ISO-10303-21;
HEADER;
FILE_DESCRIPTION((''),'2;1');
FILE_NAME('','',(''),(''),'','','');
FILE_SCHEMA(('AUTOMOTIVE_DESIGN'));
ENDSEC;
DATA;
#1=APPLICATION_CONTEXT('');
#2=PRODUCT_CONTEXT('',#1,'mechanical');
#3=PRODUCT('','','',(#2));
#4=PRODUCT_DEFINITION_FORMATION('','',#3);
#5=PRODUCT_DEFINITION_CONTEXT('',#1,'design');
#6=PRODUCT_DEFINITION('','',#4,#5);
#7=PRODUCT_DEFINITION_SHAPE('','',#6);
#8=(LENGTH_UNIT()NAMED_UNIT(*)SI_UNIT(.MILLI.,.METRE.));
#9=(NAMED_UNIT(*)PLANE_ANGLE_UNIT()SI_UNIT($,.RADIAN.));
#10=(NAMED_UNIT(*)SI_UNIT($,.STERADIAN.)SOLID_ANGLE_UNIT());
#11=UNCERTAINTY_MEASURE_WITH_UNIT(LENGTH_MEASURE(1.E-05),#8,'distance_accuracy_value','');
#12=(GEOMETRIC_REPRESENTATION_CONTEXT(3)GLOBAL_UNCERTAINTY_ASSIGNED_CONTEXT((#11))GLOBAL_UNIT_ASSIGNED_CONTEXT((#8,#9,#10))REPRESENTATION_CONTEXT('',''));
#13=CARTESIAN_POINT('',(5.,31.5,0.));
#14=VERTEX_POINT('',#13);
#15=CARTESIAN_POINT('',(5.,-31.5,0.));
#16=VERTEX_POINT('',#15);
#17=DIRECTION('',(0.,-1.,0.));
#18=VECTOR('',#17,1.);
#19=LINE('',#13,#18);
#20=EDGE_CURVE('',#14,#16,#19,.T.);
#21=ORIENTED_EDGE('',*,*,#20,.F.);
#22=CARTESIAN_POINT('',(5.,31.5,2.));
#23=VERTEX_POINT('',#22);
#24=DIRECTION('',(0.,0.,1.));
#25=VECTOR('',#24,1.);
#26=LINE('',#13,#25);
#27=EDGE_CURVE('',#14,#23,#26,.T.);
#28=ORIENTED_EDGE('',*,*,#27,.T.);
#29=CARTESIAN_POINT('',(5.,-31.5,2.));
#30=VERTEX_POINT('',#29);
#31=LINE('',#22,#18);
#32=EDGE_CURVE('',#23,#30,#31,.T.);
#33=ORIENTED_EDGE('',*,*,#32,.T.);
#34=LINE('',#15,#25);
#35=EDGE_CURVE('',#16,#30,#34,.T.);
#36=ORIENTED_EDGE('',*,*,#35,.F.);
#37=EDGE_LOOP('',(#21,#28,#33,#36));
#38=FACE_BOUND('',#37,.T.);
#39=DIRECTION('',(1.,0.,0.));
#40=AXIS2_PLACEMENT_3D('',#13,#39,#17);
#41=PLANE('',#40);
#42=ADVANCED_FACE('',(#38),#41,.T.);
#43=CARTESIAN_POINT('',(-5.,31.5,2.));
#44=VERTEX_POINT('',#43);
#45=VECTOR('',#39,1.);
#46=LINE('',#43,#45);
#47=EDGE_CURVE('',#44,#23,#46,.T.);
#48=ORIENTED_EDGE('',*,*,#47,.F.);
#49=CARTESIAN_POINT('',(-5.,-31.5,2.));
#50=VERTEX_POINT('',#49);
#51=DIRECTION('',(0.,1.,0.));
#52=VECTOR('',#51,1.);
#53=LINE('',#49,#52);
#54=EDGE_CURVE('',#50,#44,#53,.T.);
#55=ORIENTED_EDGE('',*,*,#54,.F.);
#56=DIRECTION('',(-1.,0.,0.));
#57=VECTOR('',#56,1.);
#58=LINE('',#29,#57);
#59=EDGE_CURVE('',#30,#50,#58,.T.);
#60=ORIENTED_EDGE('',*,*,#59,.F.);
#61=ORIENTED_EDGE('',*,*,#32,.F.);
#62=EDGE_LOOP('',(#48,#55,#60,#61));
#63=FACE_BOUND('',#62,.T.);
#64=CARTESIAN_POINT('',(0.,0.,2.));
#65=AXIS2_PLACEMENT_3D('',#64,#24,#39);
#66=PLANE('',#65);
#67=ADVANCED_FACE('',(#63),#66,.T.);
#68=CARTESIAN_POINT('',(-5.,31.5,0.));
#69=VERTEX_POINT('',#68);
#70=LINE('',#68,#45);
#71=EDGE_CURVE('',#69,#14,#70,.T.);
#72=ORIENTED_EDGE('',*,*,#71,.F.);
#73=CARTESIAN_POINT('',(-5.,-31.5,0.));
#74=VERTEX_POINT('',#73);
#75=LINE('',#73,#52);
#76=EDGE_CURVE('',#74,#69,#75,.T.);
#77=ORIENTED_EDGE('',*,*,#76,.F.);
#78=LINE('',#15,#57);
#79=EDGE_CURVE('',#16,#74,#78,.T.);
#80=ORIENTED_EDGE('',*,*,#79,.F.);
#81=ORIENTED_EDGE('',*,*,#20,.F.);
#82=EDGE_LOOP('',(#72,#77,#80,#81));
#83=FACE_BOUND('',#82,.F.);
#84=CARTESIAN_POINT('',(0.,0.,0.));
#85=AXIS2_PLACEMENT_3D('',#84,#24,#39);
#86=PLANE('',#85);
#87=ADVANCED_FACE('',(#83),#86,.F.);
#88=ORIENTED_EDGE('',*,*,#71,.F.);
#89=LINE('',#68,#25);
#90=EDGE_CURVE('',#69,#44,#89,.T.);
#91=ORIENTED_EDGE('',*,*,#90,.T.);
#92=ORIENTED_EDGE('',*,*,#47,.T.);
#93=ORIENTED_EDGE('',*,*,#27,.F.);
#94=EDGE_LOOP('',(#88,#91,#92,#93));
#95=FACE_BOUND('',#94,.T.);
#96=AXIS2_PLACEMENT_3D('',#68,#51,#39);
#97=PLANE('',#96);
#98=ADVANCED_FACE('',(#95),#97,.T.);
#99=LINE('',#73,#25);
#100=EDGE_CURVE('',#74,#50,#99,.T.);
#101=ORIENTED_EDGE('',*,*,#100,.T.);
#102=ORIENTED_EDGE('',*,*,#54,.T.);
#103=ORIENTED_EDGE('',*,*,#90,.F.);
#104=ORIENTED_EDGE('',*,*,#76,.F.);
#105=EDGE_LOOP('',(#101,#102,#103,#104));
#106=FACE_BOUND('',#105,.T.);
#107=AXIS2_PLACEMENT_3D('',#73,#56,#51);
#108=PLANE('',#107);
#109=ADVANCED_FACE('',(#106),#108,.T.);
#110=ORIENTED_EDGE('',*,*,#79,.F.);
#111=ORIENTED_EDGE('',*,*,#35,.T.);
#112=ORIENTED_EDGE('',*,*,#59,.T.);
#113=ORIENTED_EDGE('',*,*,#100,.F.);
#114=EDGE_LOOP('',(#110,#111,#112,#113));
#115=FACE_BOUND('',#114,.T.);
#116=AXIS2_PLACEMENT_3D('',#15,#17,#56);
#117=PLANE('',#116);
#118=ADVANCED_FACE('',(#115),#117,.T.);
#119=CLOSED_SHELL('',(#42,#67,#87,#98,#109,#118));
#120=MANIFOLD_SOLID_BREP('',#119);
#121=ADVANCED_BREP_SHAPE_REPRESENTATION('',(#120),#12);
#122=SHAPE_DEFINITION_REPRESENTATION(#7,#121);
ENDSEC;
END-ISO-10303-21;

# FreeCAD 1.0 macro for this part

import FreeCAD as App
import Part
import Sketcher
from FreeCAD import Vector

doc = App.newDocument("Part")
params = doc.addObject("Spreadsheet::Sheet", "Params")
for row, (alias, value) in enumerate([
    ("sketch1_width", "10 mm"),
    ("sketch1_height", "63 mm"),
    ("pad1_length", "2 mm"),
], start=1):
    params.set(f"A{row}", alias)
    params.set(f"B{row}", "=" + value)
    params.setAlias(f"B{row}", alias)

body = doc.addObject("PartDesign::Body", "Body")

# Sketch on XY plane
sketch1 = body.newObject("Sketcher::SketchObject", "Sketch")
sketch1.AttachmentSupport = (doc.getObject("XY_Plane"), [""])
sketch1.MapMode = "FlatFace"
sketch1.addGeometry([
    Part.LineSegment(Vector(-5, -32, 0), Vector(5, -32, 0)),
    Part.LineSegment(Vector(5, -32, 0), Vector(5, 32, 0)),
    Part.LineSegment(Vector(5, 32, 0), Vector(-5, 32, 0)),
    Part.LineSegment(Vector(-5, 32, 0), Vector(-5, -32, 0)),
], False)
sketch1.addConstraint([
    Sketcher.Constraint("Coincident", 0, 2, 1, 1),
    Sketcher.Constraint("Coincident", 1, 2, 2, 1),
    Sketcher.Constraint("Coincident", 2, 2, 3, 1),
    Sketcher.Constraint("Coincident", 3, 2, 0, 1),
    Sketcher.Constraint("Horizontal", 0),
    Sketcher.Constraint("Vertical", 1),
    Sketcher.Constraint("Horizontal", 2),
    Sketcher.Constraint("Vertical", 3),
    Sketcher.Constraint("Symmetric", 0, 2, 2, 2, -1, 1),
    Sketcher.Constraint("DistanceX", 0, 1, 0, 2, 10.0),
    Sketcher.Constraint("DistanceY", 1, 1, 1, 2, 63.0),
])
sketch1.setExpression("Constraints[9]", "Params.sketch1_width")
sketch1.setExpression("Constraints[10]", "Params.sketch1_height")
pad1 = body.newObject("PartDesign::Pad", "Pad")
pad1.Profile = sketch1
pad1.setExpression("Length", "Params.pad1_length")

doc.recompute()
